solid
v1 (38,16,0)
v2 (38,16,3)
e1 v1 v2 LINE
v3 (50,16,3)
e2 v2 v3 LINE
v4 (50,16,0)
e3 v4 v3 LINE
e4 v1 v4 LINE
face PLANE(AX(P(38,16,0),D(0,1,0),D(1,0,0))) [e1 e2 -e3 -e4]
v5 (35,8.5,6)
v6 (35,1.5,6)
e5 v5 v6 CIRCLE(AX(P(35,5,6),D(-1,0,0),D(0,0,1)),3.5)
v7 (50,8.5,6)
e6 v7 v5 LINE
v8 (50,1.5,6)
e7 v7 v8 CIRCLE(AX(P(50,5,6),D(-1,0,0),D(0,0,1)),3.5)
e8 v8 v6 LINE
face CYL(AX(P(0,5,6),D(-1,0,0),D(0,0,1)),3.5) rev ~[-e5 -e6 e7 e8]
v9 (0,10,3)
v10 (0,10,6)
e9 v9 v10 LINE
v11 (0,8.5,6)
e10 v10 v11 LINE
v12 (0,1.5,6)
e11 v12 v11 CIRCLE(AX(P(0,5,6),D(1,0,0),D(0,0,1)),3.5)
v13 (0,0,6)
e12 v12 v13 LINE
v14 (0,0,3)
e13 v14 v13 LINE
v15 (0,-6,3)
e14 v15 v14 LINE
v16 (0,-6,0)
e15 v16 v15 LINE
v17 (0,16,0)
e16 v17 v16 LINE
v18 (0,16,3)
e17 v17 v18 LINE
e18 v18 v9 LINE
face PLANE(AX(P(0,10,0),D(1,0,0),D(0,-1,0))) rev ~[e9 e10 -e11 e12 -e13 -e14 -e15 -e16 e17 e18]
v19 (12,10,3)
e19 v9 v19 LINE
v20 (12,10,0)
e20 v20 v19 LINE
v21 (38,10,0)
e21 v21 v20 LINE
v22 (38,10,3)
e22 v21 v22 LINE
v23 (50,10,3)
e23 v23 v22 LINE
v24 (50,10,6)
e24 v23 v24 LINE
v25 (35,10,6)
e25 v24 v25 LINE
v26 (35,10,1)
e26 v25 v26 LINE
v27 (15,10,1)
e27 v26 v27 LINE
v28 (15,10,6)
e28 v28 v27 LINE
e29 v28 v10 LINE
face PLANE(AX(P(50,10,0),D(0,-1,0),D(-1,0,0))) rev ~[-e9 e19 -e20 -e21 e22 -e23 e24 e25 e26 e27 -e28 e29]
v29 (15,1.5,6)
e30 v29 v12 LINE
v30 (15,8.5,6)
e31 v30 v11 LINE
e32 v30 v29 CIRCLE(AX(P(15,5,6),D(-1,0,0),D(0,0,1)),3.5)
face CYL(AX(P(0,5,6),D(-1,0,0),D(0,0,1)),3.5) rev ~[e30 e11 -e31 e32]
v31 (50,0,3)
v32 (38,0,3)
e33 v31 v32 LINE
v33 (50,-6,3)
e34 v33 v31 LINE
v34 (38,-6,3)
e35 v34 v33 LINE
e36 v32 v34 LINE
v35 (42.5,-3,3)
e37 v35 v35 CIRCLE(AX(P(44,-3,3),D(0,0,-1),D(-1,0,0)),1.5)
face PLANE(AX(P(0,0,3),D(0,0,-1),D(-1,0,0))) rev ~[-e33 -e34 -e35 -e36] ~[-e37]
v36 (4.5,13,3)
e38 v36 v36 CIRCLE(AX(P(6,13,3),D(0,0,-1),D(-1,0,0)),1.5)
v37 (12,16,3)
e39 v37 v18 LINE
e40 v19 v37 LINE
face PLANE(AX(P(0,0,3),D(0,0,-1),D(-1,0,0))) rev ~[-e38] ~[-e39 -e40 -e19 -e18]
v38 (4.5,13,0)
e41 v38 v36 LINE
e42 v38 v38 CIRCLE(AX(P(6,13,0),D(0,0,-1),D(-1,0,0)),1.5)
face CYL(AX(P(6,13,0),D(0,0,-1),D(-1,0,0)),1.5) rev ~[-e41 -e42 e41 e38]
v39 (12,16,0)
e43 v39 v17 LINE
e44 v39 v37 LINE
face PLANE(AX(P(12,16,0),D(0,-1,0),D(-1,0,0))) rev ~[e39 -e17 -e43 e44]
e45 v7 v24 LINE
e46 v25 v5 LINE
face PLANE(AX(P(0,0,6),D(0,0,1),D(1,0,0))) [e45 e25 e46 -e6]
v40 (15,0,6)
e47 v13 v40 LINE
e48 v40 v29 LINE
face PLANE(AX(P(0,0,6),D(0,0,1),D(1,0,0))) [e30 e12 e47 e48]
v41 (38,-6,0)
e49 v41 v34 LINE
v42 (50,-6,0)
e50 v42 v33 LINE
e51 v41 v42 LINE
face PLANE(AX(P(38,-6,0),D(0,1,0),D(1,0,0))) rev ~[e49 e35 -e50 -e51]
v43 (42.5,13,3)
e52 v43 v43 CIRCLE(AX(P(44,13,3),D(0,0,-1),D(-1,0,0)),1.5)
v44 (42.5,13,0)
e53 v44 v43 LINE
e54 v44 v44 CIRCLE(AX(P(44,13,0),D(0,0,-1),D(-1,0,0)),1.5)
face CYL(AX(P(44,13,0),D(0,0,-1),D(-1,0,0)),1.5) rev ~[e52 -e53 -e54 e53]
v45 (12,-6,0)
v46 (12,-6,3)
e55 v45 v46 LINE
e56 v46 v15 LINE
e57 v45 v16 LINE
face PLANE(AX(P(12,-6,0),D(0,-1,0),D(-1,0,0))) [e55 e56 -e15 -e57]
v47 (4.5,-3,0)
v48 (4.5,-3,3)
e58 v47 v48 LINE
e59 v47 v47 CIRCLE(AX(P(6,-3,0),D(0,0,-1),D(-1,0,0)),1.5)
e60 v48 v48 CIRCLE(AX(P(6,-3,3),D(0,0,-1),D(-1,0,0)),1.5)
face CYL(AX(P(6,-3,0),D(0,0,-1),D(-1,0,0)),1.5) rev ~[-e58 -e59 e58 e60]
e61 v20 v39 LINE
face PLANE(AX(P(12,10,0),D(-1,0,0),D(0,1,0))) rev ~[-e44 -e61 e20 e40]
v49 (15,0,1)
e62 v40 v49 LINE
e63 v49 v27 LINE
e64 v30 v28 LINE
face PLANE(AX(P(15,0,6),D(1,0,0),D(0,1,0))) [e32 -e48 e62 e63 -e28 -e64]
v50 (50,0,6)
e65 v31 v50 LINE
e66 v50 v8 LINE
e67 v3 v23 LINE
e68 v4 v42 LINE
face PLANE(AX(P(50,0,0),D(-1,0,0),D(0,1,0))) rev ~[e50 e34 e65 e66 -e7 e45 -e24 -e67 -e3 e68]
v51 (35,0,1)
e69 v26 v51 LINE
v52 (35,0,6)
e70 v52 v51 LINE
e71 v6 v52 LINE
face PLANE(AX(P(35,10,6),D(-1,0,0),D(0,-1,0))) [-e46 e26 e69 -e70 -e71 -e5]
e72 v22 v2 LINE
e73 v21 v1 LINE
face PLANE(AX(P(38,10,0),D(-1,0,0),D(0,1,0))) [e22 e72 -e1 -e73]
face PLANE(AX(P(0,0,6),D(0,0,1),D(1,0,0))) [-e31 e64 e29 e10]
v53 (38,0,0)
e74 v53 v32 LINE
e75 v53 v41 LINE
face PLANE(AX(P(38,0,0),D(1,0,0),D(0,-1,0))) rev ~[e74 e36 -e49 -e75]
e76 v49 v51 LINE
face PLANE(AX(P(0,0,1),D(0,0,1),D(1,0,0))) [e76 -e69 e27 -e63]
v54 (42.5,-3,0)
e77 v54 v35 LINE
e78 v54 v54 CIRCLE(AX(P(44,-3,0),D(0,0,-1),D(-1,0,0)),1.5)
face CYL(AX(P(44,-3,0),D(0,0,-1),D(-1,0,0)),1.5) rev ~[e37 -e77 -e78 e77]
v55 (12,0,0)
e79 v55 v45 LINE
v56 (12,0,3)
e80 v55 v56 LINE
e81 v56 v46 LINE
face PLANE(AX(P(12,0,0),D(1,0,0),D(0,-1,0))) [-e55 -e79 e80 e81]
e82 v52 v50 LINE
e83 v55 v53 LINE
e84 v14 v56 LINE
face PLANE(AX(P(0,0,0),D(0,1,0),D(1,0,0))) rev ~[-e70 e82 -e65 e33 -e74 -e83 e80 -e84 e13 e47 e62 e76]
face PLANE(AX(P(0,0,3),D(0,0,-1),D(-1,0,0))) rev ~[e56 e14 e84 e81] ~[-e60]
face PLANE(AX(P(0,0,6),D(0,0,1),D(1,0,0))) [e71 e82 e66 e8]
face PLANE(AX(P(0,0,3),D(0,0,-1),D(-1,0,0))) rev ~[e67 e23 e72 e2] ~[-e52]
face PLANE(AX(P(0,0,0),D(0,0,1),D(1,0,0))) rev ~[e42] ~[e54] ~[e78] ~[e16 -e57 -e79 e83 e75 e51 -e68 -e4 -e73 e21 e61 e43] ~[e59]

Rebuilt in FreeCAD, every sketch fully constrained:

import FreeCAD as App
import Part
import Sketcher
from FreeCAD import Vector


def add_polygon(sketch, points):
    """Adds a closed chain of lines whose ends are joined by coincident constraints."""
    first, n = sketch.GeometryCount, len(points)
    for a, b in zip(points, points[1:] + points[:1]):
        sketch.addGeometry(Part.LineSegment(App.Vector(*a, 0), App.Vector(*b, 0)), False)
    for i in range(n):
        sketch.addConstraint(Sketcher.Constraint("Coincident", first + i, 2, first + (i + 1) % n, 1))

doc = App.newDocument("Part")
body = doc.addObject("PartDesign::Body", "Body")

sketch1 = body.newObject("Sketcher::SketchObject", "Sketch")
sketch1.AttachmentSupport = (doc.getObject("XY_Plane"), [""])
sketch1.MapMode = "FlatFace"
add_polygon(sketch1, [(0, 10), (0, 0), (50, 0), (50, 10)])
sketch1.addConstraint([
    Sketcher.Constraint("Vertical", 0),
    Sketcher.Constraint("Horizontal", 1),
    Sketcher.Constraint("Vertical", 2),
    Sketcher.Constraint("Horizontal", 3),
    Sketcher.Constraint("Coincident", 0, 2, -1, 1),
    Sketcher.Constraint("DistanceX", 1, 1, 1, 2, 50.0),
    Sketcher.Constraint("DistanceY", 0, 2, 0, 1, 10.0),
])
pad1 = body.newObject("PartDesign::Pad", "Pad")
pad1.Profile = sketch1
pad1.Length = 6

sketch2 = body.newObject("Sketcher::SketchObject", "Sketch001")
sketch2.AttachmentSupport = (doc.getObject("YZ_Plane"), [""])
sketch2.MapMode = "FlatFace"
sketch2.addGeometry(Part.Circle(Vector(5, 6, 0), Vector(0, 0, 1), 3.5), False)
sketch2.addConstraint([
    Sketcher.Constraint("Diameter", 0, 7.0),
    Sketcher.Constraint("DistanceX", -1, 1, 0, 3, 5.0),
    Sketcher.Constraint("DistanceY", -1, 1, 0, 3, 6.0),
])
pocket1 = body.newObject("PartDesign::Pocket", "Pocket")
pocket1.Profile = sketch2
pocket1.Type = "ThroughAll"
pocket1.Reversed = True

sketch3 = body.newObject("Sketcher::SketchObject", "Sketch002")
sketch3.AttachmentSupport = (doc.getObject("XY_Plane"), [""])
sketch3.MapMode = "FlatFace"
add_polygon(sketch3, [(50, 16), (50, 10), (38, 10), (38, 16)])
sketch3.addGeometry(Part.Circle(Vector(44, 13, 0), Vector(0, 0, 1), 1.5), False)
add_polygon(sketch3, [(38, 0), (50, 0), (50, -6), (38, -6)])
sketch3.addGeometry(Part.Circle(Vector(44, -3, 0), Vector(0, 0, 1), 1.5), False)
add_polygon(sketch3, [(0, -6), (0, 0), (12, 0), (12, -6)])
sketch3.addGeometry(Part.Circle(Vector(6, -3, 0), Vector(0, 0, 1), 1.5), False)
add_polygon(sketch3, [(12, 10), (0, 10), (0, 16), (12, 16)])
sketch3.addGeometry(Part.Circle(Vector(6, 13, 0), Vector(0, 0, 1), 1.5), False)
sketch3.addConstraint([
    Sketcher.Constraint("Vertical", 0),
    Sketcher.Constraint("Horizontal", 1),
    Sketcher.Constraint("Vertical", 2),
    Sketcher.Constraint("Horizontal", 3),
    Sketcher.Constraint("Horizontal", 5),
    Sketcher.Constraint("Vertical", 6),
    Sketcher.Constraint("Horizontal", 7),
    Sketcher.Constraint("Vertical", 8),
    Sketcher.Constraint("Vertical", 10),
    Sketcher.Constraint("Horizontal", 11),
    Sketcher.Constraint("Vertical", 12),
    Sketcher.Constraint("Horizontal", 13),
    Sketcher.Constraint("Horizontal", 15),
    Sketcher.Constraint("Vertical", 16),
    Sketcher.Constraint("Horizontal", 17),
    Sketcher.Constraint("Vertical", 18),
    Sketcher.Constraint("Coincident", 10, 2, -1, 1),
    Sketcher.Constraint("Equal", 4, 9),
    Sketcher.Constraint("Equal", 9, 14),
    Sketcher.Constraint("Equal", 14, 19),
    Sketcher.Constraint("PointOnObject", 5, 2, -1),
    Sketcher.Constraint("PointOnObject", 15, 2, -2),
    Sketcher.Constraint("Horizontal", 9, 3, 14, 3),
    Sketcher.Constraint("Horizontal", 4, 3, 19, 3),
    Sketcher.Constraint("Horizontal", 7, 2, 12, 2),
    Sketcher.Constraint("Horizontal", 1, 2, 15, 2),
    Sketcher.Constraint("Horizontal", 3, 2, 16, 2),
    Sketcher.Constraint("Vertical", 4, 3, 9, 3),
    Sketcher.Constraint("Vertical", 14, 3, 19, 3),
    Sketcher.Constraint("Vertical", 3, 2, 5, 2),
    Sketcher.Constraint("Vertical", 2, 2, 7, 2),
    Sketcher.Constraint("Vertical", 12, 2, 17, 2),
    Sketcher.Constraint("Equal", 7, 11),
    Sketcher.Constraint("Equal", 2, 6),
    Sketcher.Constraint("Diameter", 4, 3.0),
    Sketcher.Constraint("DistanceX", 1, 2, 1, 1, 12.0),
    Sketcher.Constraint("DistanceY", 0, 2, 0, 1, 6.0),
    Sketcher.Constraint("DistanceY", 9, 3, -1, 1, 3.0),
    Sketcher.Constraint("DistanceX", -1, 1, 14, 3, 6.0),
    Sketcher.Constraint("DistanceX", 4, 3, 0, 2, 6.0),
    Sketcher.Constraint("DistanceY", 0, 2, 4, 3, 3.0),
    Sketcher.Constraint("DistanceX", -1, 1, 4, 3, 44.0),
    Sketcher.Constraint("DistanceY", -1, 1, 4, 3, 13.0),
])
pad2 = body.newObject("PartDesign::Pad", "Pad001")
pad2.Profile = sketch3
pad2.Length = 3

sketch4 = body.newObject("Sketcher::SketchObject", "Sketch003")
sketch4.AttachmentSupport = (doc.getObject("XY_Plane"), [""])
sketch4.MapMode = "FlatFace"
sketch4.AttachmentOffset = App.Placement(Vector(0, 0, 6), App.Rotation())
add_polygon(sketch4, [(35, 0), (35, 10), (15, 10), (15, 0)])
sketch4.addConstraint([
    Sketcher.Constraint("Vertical", 0),
    Sketcher.Constraint("Horizontal", 1),
    Sketcher.Constraint("Vertical", 2),
    Sketcher.Constraint("Horizontal", 3),
    Sketcher.Constraint("PointOnObject", 2, 2, -1),
    Sketcher.Constraint("DistanceX", 1, 2, 1, 1, 20.0),
    Sketcher.Constraint("DistanceY", 0, 1, 0, 2, 10.0),
    Sketcher.Constraint("DistanceX", -1, 1, 0, 2, 35.0),
])
pocket2 = body.newObject("PartDesign::Pocket", "Pocket001")
pocket2.Profile = sketch4
pocket2.Length = 5

doc.recompute()
